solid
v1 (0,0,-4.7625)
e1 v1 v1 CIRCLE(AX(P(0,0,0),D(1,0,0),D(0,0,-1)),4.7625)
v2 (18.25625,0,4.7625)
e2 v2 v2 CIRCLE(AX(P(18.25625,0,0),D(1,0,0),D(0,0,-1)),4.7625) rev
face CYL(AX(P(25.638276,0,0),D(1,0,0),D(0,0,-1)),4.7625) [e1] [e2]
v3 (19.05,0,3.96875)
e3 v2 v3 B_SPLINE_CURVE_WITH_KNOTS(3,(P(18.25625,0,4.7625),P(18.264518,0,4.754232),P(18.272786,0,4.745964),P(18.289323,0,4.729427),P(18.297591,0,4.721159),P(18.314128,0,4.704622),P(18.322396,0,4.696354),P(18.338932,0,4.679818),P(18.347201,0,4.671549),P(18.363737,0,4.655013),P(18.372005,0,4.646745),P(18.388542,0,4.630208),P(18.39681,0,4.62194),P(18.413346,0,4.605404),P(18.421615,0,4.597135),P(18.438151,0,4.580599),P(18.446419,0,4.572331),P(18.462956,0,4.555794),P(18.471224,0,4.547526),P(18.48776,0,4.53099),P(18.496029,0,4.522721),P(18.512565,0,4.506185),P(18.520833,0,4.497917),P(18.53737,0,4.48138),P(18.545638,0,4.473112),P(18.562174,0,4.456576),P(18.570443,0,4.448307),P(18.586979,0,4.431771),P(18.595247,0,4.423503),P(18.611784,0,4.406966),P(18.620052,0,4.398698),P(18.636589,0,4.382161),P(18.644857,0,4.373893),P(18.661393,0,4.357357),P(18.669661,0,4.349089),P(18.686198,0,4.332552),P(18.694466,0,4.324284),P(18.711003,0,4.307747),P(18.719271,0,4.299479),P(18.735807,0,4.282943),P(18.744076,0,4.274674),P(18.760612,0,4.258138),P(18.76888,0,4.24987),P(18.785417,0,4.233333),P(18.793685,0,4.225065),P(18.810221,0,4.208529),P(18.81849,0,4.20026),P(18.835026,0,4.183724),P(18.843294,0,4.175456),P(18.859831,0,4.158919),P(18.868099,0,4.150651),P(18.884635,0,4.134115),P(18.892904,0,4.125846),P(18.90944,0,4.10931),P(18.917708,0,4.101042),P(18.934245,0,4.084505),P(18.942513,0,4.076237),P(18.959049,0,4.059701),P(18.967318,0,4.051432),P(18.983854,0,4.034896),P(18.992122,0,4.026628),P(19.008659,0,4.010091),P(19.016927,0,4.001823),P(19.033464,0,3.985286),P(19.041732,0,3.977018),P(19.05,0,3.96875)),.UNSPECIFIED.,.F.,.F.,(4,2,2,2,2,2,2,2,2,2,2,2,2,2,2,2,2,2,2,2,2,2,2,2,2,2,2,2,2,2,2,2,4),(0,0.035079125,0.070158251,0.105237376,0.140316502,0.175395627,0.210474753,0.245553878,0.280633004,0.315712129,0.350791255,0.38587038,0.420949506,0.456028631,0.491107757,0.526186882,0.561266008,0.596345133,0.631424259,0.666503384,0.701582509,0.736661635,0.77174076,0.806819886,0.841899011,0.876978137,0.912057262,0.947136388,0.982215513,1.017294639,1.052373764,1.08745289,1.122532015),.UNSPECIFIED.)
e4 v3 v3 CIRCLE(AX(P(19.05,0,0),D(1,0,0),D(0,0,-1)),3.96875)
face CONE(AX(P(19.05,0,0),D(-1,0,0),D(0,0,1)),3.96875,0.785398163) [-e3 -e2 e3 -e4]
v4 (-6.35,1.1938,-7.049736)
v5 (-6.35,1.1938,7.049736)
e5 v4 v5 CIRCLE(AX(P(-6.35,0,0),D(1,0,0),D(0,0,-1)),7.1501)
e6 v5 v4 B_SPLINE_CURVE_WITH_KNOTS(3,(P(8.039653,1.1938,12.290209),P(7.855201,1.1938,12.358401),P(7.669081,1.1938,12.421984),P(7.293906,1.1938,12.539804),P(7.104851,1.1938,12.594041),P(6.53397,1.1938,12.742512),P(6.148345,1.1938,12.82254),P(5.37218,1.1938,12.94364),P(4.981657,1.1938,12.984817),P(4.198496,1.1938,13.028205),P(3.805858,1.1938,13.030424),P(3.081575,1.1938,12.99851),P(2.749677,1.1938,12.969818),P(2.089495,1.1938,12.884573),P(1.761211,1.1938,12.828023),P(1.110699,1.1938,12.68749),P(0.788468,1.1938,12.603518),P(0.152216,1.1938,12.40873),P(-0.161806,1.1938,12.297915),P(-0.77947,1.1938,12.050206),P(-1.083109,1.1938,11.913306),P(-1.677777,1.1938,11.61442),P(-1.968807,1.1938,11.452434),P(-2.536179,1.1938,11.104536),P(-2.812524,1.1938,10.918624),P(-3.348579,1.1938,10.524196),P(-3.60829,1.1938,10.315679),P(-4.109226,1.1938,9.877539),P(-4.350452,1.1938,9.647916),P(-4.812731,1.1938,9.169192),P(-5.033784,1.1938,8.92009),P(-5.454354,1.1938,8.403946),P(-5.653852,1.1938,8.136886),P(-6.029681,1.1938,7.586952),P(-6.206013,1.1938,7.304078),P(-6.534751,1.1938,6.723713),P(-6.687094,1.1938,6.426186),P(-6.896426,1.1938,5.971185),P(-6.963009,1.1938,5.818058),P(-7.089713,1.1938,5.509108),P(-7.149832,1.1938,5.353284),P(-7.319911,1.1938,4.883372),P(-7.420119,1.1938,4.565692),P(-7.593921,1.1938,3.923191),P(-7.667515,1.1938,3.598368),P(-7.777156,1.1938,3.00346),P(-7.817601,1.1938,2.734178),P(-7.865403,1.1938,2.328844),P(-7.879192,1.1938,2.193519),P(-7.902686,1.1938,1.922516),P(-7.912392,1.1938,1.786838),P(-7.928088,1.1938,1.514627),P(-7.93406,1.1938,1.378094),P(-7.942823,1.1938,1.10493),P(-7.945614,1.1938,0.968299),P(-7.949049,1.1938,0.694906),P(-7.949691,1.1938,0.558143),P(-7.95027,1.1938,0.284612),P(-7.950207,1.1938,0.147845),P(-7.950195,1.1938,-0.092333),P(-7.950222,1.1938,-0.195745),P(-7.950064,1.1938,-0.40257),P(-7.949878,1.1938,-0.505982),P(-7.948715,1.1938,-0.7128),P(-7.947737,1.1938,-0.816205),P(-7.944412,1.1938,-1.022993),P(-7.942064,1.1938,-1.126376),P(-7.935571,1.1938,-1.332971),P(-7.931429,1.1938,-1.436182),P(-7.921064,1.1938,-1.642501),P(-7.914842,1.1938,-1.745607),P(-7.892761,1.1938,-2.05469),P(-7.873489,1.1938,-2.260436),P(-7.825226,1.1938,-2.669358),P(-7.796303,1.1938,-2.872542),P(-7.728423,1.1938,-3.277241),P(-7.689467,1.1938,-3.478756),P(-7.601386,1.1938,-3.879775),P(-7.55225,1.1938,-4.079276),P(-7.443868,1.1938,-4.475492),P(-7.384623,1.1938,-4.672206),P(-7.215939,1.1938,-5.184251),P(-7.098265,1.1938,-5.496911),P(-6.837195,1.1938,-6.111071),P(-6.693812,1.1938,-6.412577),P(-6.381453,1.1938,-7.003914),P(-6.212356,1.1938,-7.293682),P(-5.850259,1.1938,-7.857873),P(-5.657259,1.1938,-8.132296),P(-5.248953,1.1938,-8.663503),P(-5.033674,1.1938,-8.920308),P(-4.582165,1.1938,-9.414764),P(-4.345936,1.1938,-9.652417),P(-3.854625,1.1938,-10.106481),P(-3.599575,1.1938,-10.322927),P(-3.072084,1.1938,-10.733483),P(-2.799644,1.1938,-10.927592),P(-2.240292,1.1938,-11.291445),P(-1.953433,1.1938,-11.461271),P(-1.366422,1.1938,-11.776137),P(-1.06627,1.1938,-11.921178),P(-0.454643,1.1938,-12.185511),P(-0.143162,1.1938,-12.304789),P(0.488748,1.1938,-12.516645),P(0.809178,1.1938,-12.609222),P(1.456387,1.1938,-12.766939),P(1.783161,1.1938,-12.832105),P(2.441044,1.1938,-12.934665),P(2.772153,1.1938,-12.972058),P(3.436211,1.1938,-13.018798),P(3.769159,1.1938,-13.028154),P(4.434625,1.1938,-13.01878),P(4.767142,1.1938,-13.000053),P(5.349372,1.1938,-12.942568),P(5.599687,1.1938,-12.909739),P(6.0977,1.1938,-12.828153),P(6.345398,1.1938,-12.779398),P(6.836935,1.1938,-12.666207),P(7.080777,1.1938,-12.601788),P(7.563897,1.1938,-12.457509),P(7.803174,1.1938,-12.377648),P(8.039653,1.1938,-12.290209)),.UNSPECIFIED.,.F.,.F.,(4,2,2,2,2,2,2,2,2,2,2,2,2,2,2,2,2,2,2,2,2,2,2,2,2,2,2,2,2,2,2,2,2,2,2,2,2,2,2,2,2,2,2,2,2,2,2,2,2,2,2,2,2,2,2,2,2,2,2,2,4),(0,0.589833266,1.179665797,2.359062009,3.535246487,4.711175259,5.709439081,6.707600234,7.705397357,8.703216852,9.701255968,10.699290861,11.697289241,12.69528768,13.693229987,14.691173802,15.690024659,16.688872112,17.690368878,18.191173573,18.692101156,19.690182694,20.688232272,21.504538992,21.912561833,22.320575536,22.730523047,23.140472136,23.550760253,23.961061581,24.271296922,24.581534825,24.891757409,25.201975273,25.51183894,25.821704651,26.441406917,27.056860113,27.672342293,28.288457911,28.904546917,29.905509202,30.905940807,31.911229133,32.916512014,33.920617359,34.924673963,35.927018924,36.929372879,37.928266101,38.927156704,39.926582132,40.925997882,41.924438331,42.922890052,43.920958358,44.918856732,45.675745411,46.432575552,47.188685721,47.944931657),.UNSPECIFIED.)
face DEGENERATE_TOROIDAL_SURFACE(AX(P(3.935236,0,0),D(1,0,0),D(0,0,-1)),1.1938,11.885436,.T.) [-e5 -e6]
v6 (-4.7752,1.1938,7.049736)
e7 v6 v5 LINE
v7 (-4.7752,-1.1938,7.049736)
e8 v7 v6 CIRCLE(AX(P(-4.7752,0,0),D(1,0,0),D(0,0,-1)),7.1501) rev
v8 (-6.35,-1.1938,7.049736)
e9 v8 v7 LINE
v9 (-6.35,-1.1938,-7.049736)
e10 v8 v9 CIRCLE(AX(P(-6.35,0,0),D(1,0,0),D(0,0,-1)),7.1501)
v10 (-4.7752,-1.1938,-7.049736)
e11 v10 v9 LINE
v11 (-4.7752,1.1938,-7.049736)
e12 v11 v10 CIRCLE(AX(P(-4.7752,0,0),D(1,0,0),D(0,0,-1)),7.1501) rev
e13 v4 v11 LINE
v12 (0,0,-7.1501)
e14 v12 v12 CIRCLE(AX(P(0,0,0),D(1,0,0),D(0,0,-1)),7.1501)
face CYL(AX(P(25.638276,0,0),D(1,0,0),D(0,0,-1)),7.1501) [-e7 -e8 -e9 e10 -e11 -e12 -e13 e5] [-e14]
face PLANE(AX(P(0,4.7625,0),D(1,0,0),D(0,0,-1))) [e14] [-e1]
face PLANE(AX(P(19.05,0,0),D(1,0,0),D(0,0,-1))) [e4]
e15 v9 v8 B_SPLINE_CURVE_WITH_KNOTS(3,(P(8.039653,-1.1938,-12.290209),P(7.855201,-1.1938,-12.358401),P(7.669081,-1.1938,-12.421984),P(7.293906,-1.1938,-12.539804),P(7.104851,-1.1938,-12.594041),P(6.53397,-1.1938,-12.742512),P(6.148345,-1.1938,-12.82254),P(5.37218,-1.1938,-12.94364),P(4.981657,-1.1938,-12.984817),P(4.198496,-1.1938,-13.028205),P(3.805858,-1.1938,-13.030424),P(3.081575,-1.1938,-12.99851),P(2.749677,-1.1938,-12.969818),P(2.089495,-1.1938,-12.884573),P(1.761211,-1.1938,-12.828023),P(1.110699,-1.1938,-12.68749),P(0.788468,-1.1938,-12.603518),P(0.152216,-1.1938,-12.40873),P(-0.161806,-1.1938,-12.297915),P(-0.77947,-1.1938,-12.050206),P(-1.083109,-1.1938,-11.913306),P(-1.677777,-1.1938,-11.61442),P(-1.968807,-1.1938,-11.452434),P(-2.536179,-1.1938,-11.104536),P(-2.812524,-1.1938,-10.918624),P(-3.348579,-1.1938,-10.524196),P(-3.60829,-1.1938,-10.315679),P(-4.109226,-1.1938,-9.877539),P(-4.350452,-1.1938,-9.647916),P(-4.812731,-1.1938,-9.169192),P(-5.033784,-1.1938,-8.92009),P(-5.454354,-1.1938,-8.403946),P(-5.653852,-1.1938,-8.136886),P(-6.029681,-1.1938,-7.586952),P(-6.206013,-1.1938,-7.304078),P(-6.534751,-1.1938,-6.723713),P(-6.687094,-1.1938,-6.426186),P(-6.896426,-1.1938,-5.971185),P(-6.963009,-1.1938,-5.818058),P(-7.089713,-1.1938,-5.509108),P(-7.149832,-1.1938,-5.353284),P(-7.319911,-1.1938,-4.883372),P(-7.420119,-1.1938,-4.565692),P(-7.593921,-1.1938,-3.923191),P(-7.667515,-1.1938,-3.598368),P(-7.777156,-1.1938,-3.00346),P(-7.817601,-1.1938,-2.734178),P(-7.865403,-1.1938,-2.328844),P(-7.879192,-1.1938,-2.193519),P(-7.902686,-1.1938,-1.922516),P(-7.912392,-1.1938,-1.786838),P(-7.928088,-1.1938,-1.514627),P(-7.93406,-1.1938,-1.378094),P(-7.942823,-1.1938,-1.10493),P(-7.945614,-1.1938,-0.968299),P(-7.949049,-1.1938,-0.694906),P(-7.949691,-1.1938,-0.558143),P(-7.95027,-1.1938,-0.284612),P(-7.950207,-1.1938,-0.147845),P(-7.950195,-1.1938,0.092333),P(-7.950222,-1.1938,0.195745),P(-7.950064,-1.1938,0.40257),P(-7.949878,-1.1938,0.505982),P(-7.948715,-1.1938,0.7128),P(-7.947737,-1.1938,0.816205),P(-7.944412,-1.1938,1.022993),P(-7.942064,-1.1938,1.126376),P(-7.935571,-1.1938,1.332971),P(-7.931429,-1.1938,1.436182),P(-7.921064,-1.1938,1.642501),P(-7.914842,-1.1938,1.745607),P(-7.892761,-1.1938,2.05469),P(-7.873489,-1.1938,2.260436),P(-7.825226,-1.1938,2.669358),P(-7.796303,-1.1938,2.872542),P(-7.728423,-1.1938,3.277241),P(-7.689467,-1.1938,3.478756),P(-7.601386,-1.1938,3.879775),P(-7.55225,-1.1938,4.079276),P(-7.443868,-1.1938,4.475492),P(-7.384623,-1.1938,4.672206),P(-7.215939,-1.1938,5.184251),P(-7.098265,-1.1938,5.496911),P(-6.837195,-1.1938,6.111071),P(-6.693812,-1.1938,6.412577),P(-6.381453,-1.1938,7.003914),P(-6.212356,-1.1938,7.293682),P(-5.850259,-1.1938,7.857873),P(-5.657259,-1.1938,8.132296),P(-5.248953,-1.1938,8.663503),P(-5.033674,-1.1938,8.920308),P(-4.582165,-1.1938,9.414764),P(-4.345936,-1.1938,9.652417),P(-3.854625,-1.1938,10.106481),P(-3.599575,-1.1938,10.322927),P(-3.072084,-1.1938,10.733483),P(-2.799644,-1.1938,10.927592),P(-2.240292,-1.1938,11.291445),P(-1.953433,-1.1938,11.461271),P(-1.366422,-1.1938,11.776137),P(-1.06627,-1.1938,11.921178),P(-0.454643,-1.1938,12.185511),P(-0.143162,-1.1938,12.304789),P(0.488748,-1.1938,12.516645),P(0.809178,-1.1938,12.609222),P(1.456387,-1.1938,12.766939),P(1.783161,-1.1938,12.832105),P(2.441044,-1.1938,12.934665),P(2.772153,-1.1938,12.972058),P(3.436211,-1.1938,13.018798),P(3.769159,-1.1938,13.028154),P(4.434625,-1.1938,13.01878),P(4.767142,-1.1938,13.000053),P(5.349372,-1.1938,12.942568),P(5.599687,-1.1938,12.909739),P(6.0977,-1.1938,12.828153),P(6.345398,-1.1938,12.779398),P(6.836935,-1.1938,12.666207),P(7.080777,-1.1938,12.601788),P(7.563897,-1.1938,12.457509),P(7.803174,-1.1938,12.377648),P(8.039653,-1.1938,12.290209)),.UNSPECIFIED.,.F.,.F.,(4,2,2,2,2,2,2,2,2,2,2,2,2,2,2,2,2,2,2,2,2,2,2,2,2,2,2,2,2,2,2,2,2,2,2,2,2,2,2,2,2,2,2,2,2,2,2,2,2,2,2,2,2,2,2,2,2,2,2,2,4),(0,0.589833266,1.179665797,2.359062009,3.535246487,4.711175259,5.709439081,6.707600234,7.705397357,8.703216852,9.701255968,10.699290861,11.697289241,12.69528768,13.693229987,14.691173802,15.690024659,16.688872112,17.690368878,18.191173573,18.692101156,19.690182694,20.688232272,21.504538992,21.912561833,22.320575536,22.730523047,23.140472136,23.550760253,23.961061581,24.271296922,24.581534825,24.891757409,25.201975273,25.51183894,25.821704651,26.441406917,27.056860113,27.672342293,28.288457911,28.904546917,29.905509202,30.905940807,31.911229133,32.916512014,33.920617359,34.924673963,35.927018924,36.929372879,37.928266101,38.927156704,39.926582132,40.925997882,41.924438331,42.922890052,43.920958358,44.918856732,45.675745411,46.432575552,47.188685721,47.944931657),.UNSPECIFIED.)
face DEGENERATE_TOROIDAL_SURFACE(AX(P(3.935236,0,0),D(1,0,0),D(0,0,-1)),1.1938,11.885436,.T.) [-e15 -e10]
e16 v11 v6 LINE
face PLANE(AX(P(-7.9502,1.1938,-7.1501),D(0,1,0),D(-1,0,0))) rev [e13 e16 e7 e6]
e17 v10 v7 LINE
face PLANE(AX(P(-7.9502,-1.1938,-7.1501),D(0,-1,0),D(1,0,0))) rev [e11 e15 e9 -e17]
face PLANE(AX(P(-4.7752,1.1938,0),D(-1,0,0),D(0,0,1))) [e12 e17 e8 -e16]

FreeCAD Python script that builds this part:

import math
import FreeCAD as App
import Part
import Sketcher
Q = App.Units.Quantity


def edges_at(feature, points):
    """Names of the edges that pass closest to the given points."""
    edges = feature.Shape.Edges
    near = lambda p: min(range(len(edges)), key=lambda i: edges[i].distToShape(Part.Vertex(*p))[0])
    return sorted({f"Edge{near(p) + 1}" for p in points})


def add_polygon(sketch, points):
    """Adds a closed chain of lines whose ends are joined by coincident constraints."""
    first, n = sketch.GeometryCount, len(points)
    for a, b in zip(points, points[1:] + points[:1]):
        sketch.addGeometry(Part.LineSegment(App.Vector(*a, 0), App.Vector(*b, 0)), False)
    for i in range(n):
        sketch.addConstraint(Sketcher.Constraint("Coincident", first + i, 2, first + (i + 1) % n, 1))

doc = App.newDocument("Part")
body = doc.addObject("PartDesign::Body", "Body")

sketch1 = body.newObject("Sketcher::SketchObject", "Sketch")
sketch1.AttachmentSupport = (doc.getObject("XY_Plane"), [""])
sketch1.MapMode = "FlatFace"
sketch1.addGeometry(Part.LineSegment(App.Vector(-4.7752, 0, 0), App.Vector(19.05, 0, 0)), False)
sketch1.addGeometry(Part.LineSegment(App.Vector(19.05, 0, 0), App.Vector(19.05, 4.7625, 0)), False)
sketch1.addGeometry(Part.LineSegment(App.Vector(19.05, 4.7625, 0), App.Vector(0, 4.7625, 0)), False)
sketch1.addGeometry(Part.LineSegment(App.Vector(0, 4.7625, 0), App.Vector(0, 7.1501, 0)), False)
sketch1.addGeometry(Part.LineSegment(App.Vector(0, 7.1501, 0), App.Vector(-6.35, 7.1501, 0)), False)
sketch1.addGeometry(Part.ArcOfCircle(Part.Circle(App.Vector(3.935236, 1.1938, 0), App.Vector(0, 0, 1), 11.885436), math.radians(149.924368), math.radians(180)), False)
sketch1.addGeometry(Part.LineSegment(App.Vector(-7.9502, 1.1938, 0), App.Vector(-4.7752, 1.1938, 0)), False)
sketch1.addGeometry(Part.LineSegment(App.Vector(-4.7752, 1.1938, 0), App.Vector(-4.7752, 0, 0)), False)
sketch1.addConstraint(Sketcher.Constraint("Coincident", 0, 2, 1, 1))
sketch1.addConstraint(Sketcher.Constraint("Coincident", 1, 2, 2, 1))
sketch1.addConstraint(Sketcher.Constraint("Coincident", 2, 2, 3, 1))
sketch1.addConstraint(Sketcher.Constraint("Coincident", 3, 2, 4, 1))
sketch1.addConstraint(Sketcher.Constraint("Coincident", 4, 2, 5, 1))
sketch1.addConstraint(Sketcher.Constraint("Coincident", 5, 2, 6, 1))
sketch1.addConstraint(Sketcher.Constraint("Coincident", 6, 2, 7, 1))
sketch1.addConstraint(Sketcher.Constraint("Coincident", 7, 2, 0, 1))
sketch1.addConstraint(Sketcher.Constraint("Horizontal", 0))
sketch1.addConstraint(Sketcher.Constraint("Vertical", 1))
sketch1.addConstraint(Sketcher.Constraint("Horizontal", 2))
sketch1.addConstraint(Sketcher.Constraint("Vertical", 3))
sketch1.addConstraint(Sketcher.Constraint("Horizontal", 4))
sketch1.addConstraint(Sketcher.Constraint("Horizontal", 6))
sketch1.addConstraint(Sketcher.Constraint("Vertical", 7))
sketch1.addConstraint(Sketcher.Constraint("PointOnObject", 0, 2, -1))
sketch1.addConstraint(Sketcher.Constraint("PointOnObject", 2, 2, -2))
sketch1.addConstraint(Sketcher.Constraint("DistanceX", 4, 2, 1, 2, Q("1 in")))
sketch1.addConstraint(Sketcher.Constraint("DistanceX", 2, 2, 2, 1, Q("0.75 in")))
sketch1.addConstraint(Sketcher.Constraint("DistanceX", 0, 1, 0, 2, Q("0.938 in")))
sketch1.addConstraint(Sketcher.Constraint("DistanceX", 6, 1, 6, 2, Q("0.125 in")))
sketch1.addConstraint(Sketcher.Constraint("DistanceY", 1, 1, 1, 2, Q("0.1875 in")))
sketch1.addConstraint(Sketcher.Constraint("DistanceY", 3, 1, 3, 2, Q("0.094 in")))
sketch1.addConstraint(Sketcher.Constraint("DistanceY", 7, 2, 7, 1, Q("0.047 in")))
sketch1.addConstraint(Sketcher.Constraint("DistanceY", -1, 1, 5, 3, Q("0.047 in")))
revolution = body.newObject("PartDesign::Revolution", "Revolution")
revolution.Profile = sketch1
revolution.ReferenceAxis = (sketch1, ["H_Axis"])
revolution.Angle = 360

sketch2 = body.newObject("Sketcher::SketchObject", "Sketch001")
sketch2.AttachmentSupport = (doc.getObject("XY_Plane"), [""])
sketch2.MapMode = "FlatFace"
add_polygon(sketch2, [(-7.9502, 1.1938), (-7.9502, -1.1938), (-4.7752, -1.1938), (-4.7752, 1.1938)])
sketch2.addConstraint(Sketcher.Constraint("Vertical", 0))
sketch2.addConstraint(Sketcher.Constraint("Horizontal", 1))
sketch2.addConstraint(Sketcher.Constraint("Vertical", 2))
sketch2.addConstraint(Sketcher.Constraint("Horizontal", 3))
sketch2.addConstraint(Sketcher.Constraint("DistanceX", 1, 1, 1, 2, Q("0.125 in")))
sketch2.addConstraint(Sketcher.Constraint("DistanceY", 0, 2, 0, 1, Q("0.094 in")))
sketch2.addConstraint(Sketcher.Constraint("DistanceX", 0, 2, -1, 1, Q("0.313 in")))
sketch2.addConstraint(Sketcher.Constraint("DistanceY", 0, 2, -1, 1, Q("0.047 in")))
pocket1 = body.newObject("PartDesign::Pocket", "Pocket")
pocket1.Profile = sketch2
pocket1.Type = "ThroughAll"
pocket1.Midplane = True
doc.recompute()

chamfer = body.newObject("PartDesign::Chamfer", "Chamfer")
chamfer.Base = (pocket1, edges_at(pocket1, [(19.05, 0, 4.763)]))
chamfer.Size = Q("0.03125 in")

doc.recompute()
